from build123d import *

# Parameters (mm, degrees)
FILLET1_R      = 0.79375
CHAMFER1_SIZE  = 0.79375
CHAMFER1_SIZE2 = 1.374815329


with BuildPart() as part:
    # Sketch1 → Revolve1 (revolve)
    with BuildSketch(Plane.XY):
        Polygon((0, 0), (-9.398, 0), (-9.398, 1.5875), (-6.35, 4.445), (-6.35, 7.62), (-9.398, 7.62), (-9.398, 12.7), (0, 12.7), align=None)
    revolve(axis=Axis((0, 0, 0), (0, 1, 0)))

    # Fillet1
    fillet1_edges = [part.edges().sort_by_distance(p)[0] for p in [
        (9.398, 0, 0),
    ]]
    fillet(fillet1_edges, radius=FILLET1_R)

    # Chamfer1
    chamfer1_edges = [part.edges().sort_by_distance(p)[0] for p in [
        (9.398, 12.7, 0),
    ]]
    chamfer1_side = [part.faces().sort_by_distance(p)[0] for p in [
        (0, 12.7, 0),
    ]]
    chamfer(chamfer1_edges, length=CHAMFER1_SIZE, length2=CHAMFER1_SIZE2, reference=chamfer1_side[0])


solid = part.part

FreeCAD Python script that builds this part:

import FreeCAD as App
import Part
import Sketcher
Q = App.Units.Quantity


def edges_at(feature, points):
    """Names of the edges that pass closest to the given points."""
    edges = feature.Shape.Edges
    near = lambda p: min(range(len(edges)), key=lambda i: edges[i].distToShape(Part.Vertex(*p))[0])
    return sorted({f"Edge{near(p) + 1}" for p in points})

doc = App.newDocument("Part")
body = doc.addObject("PartDesign::Body", "Body")

# Sketch on XY plane
sketch1 = body.newObject("Sketcher::SketchObject", "Sketch")
sketch1.AttachmentSupport = (doc.getObject("XY_Plane"), [""])
sketch1.MapMode = "FlatFace"
sketch1.addGeometry(Part.LineSegment(App.Vector(-9.4, 0, 0), App.Vector(0, 0, 0)), False)
sketch1.addGeometry(Part.LineSegment(App.Vector(0, 0, 0), App.Vector(0, 12.7, 0)), False)
sketch1.addGeometry(Part.LineSegment(App.Vector(0, 12.7, 0), App.Vector(-9.4, 12.7, 0)), False)
sketch1.addGeometry(Part.LineSegment(App.Vector(-9.4, 12.7, 0), App.Vector(-9.4, 7.6, 0)), False)
sketch1.addGeometry(Part.LineSegment(App.Vector(-9.4, 7.6, 0), App.Vector(-6.3, 7.6, 0)), False)
sketch1.addGeometry(Part.LineSegment(App.Vector(-6.3, 7.6, 0), App.Vector(-6.3, 4.4, 0)), False)
sketch1.addGeometry(Part.LineSegment(App.Vector(-6.3, 4.4, 0), App.Vector(-9.4, 1.6, 0)), False)
sketch1.addGeometry(Part.LineSegment(App.Vector(-9.4, 1.6, 0), App.Vector(-9.4, 0, 0)), False)
sketch1.addConstraint(Sketcher.Constraint("Coincident", 0, 2, 1, 1))
sketch1.addConstraint(Sketcher.Constraint("Coincident", 1, 2, 2, 1))
sketch1.addConstraint(Sketcher.Constraint("Coincident", 2, 2, 3, 1))
sketch1.addConstraint(Sketcher.Constraint("Coincident", 3, 2, 4, 1))
sketch1.addConstraint(Sketcher.Constraint("Coincident", 4, 2, 5, 1))
sketch1.addConstraint(Sketcher.Constraint("Coincident", 5, 2, 6, 1))
sketch1.addConstraint(Sketcher.Constraint("Coincident", 6, 2, 7, 1))
sketch1.addConstraint(Sketcher.Constraint("Coincident", 7, 2, 0, 1))
sketch1.addConstraint(Sketcher.Constraint("Horizontal", 0))
sketch1.addConstraint(Sketcher.Constraint("Vertical", 1))
sketch1.addConstraint(Sketcher.Constraint("Horizontal", 2))
sketch1.addConstraint(Sketcher.Constraint("Vertical", 3))
sketch1.addConstraint(Sketcher.Constraint("Horizontal", 4))
sketch1.addConstraint(Sketcher.Constraint("Vertical", 5))
sketch1.addConstraint(Sketcher.Constraint("Vertical", 7))
sketch1.addConstraint(Sketcher.Constraint("Coincident", 0, 2, -1, 1))
sketch1.addConstraint(Sketcher.Constraint("Vertical", 3, 2, 6, 2))
sketch1.addConstraint(Sketcher.Constraint("DistanceY", 1, 1, 1, 2, Q("0.5 in")))
sketch1.addConstraint(Sketcher.Constraint("DistanceY", 3, 2, 3, 1, Q("0.2 in")))
sketch1.addConstraint(Sketcher.Constraint("DistanceX", 0, 1, 0, 2, Q("0.37 in")))
sketch1.addConstraint(Sketcher.Constraint("DistanceX", 4, 1, 4, 2, Q("0.12 in")))
sketch1.addConstraint(Sketcher.Constraint("DistanceY", 5, 2, 5, 1, Q("0.125 in")))
sketch1.addConstraint(Sketcher.Constraint("DistanceY", 7, 2, 7, 1, Q("0.0625 in")))
revolution = body.newObject("PartDesign::Revolution", "Revolution")
revolution.Profile = sketch1
revolution.ReferenceAxis = (sketch1, ["V_Axis"])
revolution.Angle = 360
doc.recompute()

fillet = body.newObject("PartDesign::Fillet", "Fillet")
fillet.Base = (revolution, edges_at(revolution, [(9.398, 0, 0)]))
fillet.Radius = Q("0.03125 in")
doc.recompute()

chamfer = body.newObject("PartDesign::Chamfer", "Chamfer")
chamfer.Base = (fillet, edges_at(fillet, [(9.398, 12.7, 0)]))
chamfer.ChamferType = "Two distances"
chamfer.Size = Q("0.03125 in")
chamfer.Size2 = 1.374815
chamfer.FlipDirection = True

doc.recompute()
